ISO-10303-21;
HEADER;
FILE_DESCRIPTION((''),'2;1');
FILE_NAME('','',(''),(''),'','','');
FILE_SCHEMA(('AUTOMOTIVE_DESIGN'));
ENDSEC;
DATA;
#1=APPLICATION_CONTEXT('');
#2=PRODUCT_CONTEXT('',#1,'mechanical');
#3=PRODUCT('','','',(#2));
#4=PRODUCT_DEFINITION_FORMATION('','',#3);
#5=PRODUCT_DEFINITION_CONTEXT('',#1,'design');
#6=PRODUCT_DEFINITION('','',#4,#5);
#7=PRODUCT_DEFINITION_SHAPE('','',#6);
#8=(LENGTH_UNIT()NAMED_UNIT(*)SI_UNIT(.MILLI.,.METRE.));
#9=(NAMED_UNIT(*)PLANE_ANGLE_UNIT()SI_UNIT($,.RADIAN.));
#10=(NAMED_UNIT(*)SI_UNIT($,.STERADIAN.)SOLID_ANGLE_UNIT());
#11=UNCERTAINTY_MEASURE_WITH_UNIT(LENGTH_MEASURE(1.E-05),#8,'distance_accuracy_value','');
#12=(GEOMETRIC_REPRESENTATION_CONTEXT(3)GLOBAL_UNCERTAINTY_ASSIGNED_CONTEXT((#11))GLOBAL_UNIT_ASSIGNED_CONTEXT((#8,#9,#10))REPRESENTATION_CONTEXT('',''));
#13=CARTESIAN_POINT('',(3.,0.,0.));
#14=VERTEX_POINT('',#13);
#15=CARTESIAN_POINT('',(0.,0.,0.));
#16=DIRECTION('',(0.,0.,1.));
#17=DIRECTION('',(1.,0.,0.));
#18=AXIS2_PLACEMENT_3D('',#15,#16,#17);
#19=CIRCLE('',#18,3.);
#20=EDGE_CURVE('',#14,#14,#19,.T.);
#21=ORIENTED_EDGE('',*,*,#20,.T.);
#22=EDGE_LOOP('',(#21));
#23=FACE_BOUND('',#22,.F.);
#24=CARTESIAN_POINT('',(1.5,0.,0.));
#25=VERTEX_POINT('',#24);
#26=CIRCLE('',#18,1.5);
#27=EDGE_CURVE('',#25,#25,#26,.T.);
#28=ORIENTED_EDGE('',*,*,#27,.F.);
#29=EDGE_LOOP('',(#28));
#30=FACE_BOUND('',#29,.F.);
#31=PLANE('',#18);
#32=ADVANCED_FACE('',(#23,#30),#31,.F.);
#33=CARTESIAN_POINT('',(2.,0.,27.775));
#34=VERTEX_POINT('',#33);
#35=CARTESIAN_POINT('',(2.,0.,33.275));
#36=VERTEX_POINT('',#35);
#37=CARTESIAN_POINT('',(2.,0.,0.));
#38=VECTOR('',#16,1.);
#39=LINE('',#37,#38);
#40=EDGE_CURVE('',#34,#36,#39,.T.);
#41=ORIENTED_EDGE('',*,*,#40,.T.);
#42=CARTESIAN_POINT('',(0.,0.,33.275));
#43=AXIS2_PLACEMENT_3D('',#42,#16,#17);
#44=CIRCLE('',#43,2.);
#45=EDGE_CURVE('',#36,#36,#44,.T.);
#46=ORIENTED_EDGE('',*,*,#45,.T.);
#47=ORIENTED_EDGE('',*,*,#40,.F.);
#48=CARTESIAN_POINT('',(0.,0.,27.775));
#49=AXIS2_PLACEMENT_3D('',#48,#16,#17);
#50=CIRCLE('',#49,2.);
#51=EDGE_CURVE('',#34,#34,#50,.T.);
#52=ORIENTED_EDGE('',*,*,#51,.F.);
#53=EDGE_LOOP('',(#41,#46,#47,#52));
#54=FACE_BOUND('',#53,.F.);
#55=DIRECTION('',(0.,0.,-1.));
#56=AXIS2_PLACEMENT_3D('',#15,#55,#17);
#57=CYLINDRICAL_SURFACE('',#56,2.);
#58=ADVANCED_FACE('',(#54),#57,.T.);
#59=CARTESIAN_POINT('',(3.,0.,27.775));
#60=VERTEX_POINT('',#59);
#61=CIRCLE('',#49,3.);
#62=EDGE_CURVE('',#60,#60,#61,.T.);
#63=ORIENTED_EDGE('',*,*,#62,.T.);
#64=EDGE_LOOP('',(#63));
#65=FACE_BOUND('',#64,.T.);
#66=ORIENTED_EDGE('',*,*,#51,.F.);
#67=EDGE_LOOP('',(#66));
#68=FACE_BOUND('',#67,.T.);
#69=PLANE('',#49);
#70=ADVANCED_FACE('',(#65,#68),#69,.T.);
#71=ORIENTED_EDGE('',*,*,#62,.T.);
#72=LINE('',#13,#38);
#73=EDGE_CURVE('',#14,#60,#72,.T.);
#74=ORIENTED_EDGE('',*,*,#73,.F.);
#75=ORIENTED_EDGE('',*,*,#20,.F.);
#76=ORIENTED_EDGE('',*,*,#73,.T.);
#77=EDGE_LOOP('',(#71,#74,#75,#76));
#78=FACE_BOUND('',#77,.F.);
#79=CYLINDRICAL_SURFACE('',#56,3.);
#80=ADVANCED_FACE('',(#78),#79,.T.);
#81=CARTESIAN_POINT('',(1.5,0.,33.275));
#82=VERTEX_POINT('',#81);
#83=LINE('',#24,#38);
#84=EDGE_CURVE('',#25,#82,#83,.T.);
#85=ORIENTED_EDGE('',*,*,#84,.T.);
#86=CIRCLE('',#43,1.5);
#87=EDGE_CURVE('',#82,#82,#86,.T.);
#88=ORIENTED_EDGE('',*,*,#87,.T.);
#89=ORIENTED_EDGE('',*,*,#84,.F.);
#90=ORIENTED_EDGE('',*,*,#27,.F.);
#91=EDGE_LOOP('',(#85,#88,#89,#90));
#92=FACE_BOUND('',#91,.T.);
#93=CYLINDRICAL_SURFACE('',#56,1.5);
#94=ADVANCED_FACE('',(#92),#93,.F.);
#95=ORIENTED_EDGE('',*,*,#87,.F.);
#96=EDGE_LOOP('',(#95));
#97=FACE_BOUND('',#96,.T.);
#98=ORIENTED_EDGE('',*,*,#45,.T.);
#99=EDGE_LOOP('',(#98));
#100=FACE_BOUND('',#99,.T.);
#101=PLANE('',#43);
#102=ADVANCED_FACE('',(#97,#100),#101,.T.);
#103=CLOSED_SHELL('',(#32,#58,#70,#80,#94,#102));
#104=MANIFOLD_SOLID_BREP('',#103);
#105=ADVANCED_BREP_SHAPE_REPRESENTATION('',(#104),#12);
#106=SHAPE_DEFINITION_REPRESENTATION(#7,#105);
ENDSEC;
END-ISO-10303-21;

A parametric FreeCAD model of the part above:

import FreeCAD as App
import Part
import Sketcher
Q = App.Units.Quantity

doc = App.newDocument("Part")
body = doc.addObject("PartDesign::Body", "Body")

# Sketch on XY plane
sketch1 = doc.addObject("Sketcher::SketchObject", "Sketch")
body.addObject(sketch1)
sketch1.AttachmentSupport = (doc.XY_Plane, [""])
sketch1.MapMode = "FlatFace"
sketch1.addGeometry([
    Part.Circle(App.Vector(0, 0, 0), App.Vector(0, 0, 1), 3),
    Part.Circle(App.Vector(0, 0, 0), App.Vector(0, 0, 1), 2),
], False)
sketch1.addConstraint([
    Sketcher.Constraint("Coincident", 0, 3, -1, 1),
    Sketcher.Constraint("Coincident", 1, 3, -1, 1),
    Sketcher.Constraint("Diameter", 0, Q("6 mm")),
    Sketcher.Constraint("Diameter", 1, Q("4 mm")),
])
pad1 = doc.addObject("PartDesign::Pad", "Pad")
body.addObject(pad1)
pad1.Profile = sketch1
pad1.Length = 27.775

# Sketch on XY plane
sketch2 = doc.addObject("Sketcher::SketchObject", "Sketch001")
body.addObject(sketch2)
sketch2.AttachmentSupport = (doc.XY_Plane, [""])
sketch2.MapMode = "FlatFace"
sketch2.addGeometry([
    Part.Circle(App.Vector(0, 0, 0), App.Vector(0, 0, 1), 2),
    Part.Circle(App.Vector(0, 0, 0), App.Vector(0, 0, 1), 1.5),
], False)
sketch2.addConstraint([
    Sketcher.Constraint("Coincident", 0, 3, -1, 1),
    Sketcher.Constraint("Coincident", 1, 3, -1, 1),
    Sketcher.Constraint("Diameter", 0, Q("4 mm")),
    Sketcher.Constraint("Diameter", 1, Q("3 mm")),
])
pad2 = doc.addObject("PartDesign::Pad", "Pad001")
body.addObject(pad2)
pad2.Profile = sketch2
pad2.Length = 33.275

doc.recompute()
